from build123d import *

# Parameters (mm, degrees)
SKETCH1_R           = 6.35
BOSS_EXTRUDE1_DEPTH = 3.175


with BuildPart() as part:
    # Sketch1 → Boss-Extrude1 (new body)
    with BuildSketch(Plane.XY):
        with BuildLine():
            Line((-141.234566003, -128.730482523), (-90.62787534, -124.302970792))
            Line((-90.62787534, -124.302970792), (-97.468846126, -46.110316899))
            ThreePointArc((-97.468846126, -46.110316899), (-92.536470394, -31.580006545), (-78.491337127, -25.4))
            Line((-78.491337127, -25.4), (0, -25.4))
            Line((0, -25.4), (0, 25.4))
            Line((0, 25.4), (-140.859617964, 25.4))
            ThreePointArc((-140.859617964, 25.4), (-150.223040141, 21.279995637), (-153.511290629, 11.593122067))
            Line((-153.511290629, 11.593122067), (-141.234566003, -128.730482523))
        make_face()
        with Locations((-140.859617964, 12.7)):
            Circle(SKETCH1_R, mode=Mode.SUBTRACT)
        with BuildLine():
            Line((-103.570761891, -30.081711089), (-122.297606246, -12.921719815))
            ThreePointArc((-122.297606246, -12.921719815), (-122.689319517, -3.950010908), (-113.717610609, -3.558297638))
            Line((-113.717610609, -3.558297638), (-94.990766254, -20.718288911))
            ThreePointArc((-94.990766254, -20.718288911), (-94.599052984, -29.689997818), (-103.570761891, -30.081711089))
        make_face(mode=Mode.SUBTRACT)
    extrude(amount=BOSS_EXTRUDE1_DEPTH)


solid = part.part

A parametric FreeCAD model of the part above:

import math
import FreeCAD as App
import Part
import Sketcher
Q = App.Units.Quantity

doc = App.newDocument("Part")
body = doc.addObject("PartDesign::Body", "Body")

# Sketch on XY plane
sketch1 = body.newObject("Sketcher::SketchObject", "Sketch")
sketch1.AttachmentSupport = (doc.getObject("XY_Plane"), [""])
sketch1.MapMode = "FlatFace"
sketch1.addGeometry(Part.LineSegment(App.Vector(-141, -129, 0), App.Vector(-91, -124, 0)), False)
sketch1.addGeometry(Part.LineSegment(App.Vector(-91, -124, 0), App.Vector(-97, -46, 0)), False)
sketch1.addGeometry(Part.ArcOfCircle(Part.Circle(App.Vector(-78, -44, 0), App.Vector(0, 0, 1), 19), math.radians(90), math.radians(185)), False)
sketch1.addGeometry(Part.LineSegment(App.Vector(-78, -25, 0), App.Vector(0, -25, 0)), False)
sketch1.addGeometry(Part.LineSegment(App.Vector(0, -25, 0), App.Vector(0, 25, 0)), False)
sketch1.addGeometry(Part.LineSegment(App.Vector(0, 25, 0), App.Vector(-141, 25, 0)), False)
sketch1.addGeometry(Part.ArcOfCircle(Part.Circle(App.Vector(-141, 13, 0), App.Vector(0, 0, 1), 13), math.radians(90), math.radians(185)), False)
sketch1.addGeometry(Part.LineSegment(App.Vector(-154, 12, 0), App.Vector(-141, -129, 0)), False)
sketch1.addGeometry(Part.ArcOfCircle(Part.Circle(App.Vector(-99, -25, 0), App.Vector(0, 0, 1), 6), math.radians(-132), math.radians(47)), False)
sketch1.addGeometry(Part.LineSegment(App.Vector(-104, -30, 0), App.Vector(-122, -13, 0)), False)
sketch1.addGeometry(Part.ArcOfCircle(Part.Circle(App.Vector(-118, -8, 0), App.Vector(0, 0, 1), 6), math.radians(47), math.radians(228)), False)
sketch1.addGeometry(Part.LineSegment(App.Vector(-114, -4, 0), App.Vector(-95, -21, 0)), False)
sketch1.addGeometry(Part.Circle(App.Vector(-141, 13, 0), App.Vector(0, 0, 1), 6), False)
sketch1.addConstraint(Sketcher.Constraint("Coincident", 0, 2, 1, 1))
sketch1.addConstraint(Sketcher.Constraint("Tangent", 1, 2, 2, 2))
sketch1.addConstraint(Sketcher.Constraint("Tangent", 2, 1, 3, 1))
sketch1.addConstraint(Sketcher.Constraint("Coincident", 3, 2, 4, 1))
sketch1.addConstraint(Sketcher.Constraint("Coincident", 4, 2, 5, 1))
sketch1.addConstraint(Sketcher.Constraint("Tangent", 5, 2, 6, 1))
sketch1.addConstraint(Sketcher.Constraint("Tangent", 6, 2, 7, 1))
sketch1.addConstraint(Sketcher.Constraint("Coincident", 7, 2, 0, 1))
sketch1.addConstraint(Sketcher.Constraint("Tangent", 8, 1, 9, 1))
sketch1.addConstraint(Sketcher.Constraint("Tangent", 9, 2, 10, 2))
sketch1.addConstraint(Sketcher.Constraint("Tangent", 10, 1, 11, 1))
sketch1.addConstraint(Sketcher.Constraint("Tangent", 11, 2, 8, 2))
sketch1.addConstraint(Sketcher.Constraint("Horizontal", 3))
sketch1.addConstraint(Sketcher.Constraint("Vertical", 4))
sketch1.addConstraint(Sketcher.Constraint("Horizontal", 5))
sketch1.addConstraint(Sketcher.Constraint("Coincident", 12, 3, 6, 3))
sketch1.addConstraint(Sketcher.Constraint("Equal", 8, 10))
sketch1.addConstraint(Sketcher.Constraint("Equal", 10, 12))
sketch1.addConstraint(Sketcher.Constraint("Symmetric", 3, 2, 4, 2, -1, 1))
sketch1.addConstraint(Sketcher.Constraint("Perpendicular", 0, 1))
sketch1.addConstraint(Sketcher.Constraint("Parallel", 1, 7))
sketch1.addConstraint(Sketcher.Constraint("Horizontal", 8, 3, 2, 1))
sketch1.addConstraint(Sketcher.Constraint("Diameter", 12, Q("0.5 in")))
sketch1.addConstraint(Sketcher.Constraint("Radius", 6, Q("0.5 in")))
sketch1.addConstraint(Sketcher.Constraint("DistanceY", 4, 1, 4, 2, Q("2 in")))
sketch1.addConstraint(Sketcher.Constraint("Radius", 2, Q("0.75 in")))
sketch1.addConstraint(Sketcher.Constraint("Distance", 0, Q("2 in")))
sketch1.addConstraint(Sketcher.Constraint("Distance", 9, Q("1 in")))
sketch1.addConstraint(Sketcher.Constraint("Angle", 0, Q("5 deg")))
sketch1.addConstraint(Sketcher.Constraint("Angle", 9, Q("137.5 deg")))
sketch1.addConstraint(Sketcher.Constraint("DistanceX", 7, 2, 8, 3, 41.953802))
sketch1.addConstraint(Sketcher.Constraint("DistanceX", 3, 1, 3, 2, 78.491337))
sketch1.addConstraint(Sketcher.Constraint("DistanceX", 10, 3, -1, 1, 118.007608))
pad1 = body.newObject("PartDesign::Pad", "Pad")
pad1.Profile = sketch1
pad1.Length = Q("0.125 in")

doc.recompute()
